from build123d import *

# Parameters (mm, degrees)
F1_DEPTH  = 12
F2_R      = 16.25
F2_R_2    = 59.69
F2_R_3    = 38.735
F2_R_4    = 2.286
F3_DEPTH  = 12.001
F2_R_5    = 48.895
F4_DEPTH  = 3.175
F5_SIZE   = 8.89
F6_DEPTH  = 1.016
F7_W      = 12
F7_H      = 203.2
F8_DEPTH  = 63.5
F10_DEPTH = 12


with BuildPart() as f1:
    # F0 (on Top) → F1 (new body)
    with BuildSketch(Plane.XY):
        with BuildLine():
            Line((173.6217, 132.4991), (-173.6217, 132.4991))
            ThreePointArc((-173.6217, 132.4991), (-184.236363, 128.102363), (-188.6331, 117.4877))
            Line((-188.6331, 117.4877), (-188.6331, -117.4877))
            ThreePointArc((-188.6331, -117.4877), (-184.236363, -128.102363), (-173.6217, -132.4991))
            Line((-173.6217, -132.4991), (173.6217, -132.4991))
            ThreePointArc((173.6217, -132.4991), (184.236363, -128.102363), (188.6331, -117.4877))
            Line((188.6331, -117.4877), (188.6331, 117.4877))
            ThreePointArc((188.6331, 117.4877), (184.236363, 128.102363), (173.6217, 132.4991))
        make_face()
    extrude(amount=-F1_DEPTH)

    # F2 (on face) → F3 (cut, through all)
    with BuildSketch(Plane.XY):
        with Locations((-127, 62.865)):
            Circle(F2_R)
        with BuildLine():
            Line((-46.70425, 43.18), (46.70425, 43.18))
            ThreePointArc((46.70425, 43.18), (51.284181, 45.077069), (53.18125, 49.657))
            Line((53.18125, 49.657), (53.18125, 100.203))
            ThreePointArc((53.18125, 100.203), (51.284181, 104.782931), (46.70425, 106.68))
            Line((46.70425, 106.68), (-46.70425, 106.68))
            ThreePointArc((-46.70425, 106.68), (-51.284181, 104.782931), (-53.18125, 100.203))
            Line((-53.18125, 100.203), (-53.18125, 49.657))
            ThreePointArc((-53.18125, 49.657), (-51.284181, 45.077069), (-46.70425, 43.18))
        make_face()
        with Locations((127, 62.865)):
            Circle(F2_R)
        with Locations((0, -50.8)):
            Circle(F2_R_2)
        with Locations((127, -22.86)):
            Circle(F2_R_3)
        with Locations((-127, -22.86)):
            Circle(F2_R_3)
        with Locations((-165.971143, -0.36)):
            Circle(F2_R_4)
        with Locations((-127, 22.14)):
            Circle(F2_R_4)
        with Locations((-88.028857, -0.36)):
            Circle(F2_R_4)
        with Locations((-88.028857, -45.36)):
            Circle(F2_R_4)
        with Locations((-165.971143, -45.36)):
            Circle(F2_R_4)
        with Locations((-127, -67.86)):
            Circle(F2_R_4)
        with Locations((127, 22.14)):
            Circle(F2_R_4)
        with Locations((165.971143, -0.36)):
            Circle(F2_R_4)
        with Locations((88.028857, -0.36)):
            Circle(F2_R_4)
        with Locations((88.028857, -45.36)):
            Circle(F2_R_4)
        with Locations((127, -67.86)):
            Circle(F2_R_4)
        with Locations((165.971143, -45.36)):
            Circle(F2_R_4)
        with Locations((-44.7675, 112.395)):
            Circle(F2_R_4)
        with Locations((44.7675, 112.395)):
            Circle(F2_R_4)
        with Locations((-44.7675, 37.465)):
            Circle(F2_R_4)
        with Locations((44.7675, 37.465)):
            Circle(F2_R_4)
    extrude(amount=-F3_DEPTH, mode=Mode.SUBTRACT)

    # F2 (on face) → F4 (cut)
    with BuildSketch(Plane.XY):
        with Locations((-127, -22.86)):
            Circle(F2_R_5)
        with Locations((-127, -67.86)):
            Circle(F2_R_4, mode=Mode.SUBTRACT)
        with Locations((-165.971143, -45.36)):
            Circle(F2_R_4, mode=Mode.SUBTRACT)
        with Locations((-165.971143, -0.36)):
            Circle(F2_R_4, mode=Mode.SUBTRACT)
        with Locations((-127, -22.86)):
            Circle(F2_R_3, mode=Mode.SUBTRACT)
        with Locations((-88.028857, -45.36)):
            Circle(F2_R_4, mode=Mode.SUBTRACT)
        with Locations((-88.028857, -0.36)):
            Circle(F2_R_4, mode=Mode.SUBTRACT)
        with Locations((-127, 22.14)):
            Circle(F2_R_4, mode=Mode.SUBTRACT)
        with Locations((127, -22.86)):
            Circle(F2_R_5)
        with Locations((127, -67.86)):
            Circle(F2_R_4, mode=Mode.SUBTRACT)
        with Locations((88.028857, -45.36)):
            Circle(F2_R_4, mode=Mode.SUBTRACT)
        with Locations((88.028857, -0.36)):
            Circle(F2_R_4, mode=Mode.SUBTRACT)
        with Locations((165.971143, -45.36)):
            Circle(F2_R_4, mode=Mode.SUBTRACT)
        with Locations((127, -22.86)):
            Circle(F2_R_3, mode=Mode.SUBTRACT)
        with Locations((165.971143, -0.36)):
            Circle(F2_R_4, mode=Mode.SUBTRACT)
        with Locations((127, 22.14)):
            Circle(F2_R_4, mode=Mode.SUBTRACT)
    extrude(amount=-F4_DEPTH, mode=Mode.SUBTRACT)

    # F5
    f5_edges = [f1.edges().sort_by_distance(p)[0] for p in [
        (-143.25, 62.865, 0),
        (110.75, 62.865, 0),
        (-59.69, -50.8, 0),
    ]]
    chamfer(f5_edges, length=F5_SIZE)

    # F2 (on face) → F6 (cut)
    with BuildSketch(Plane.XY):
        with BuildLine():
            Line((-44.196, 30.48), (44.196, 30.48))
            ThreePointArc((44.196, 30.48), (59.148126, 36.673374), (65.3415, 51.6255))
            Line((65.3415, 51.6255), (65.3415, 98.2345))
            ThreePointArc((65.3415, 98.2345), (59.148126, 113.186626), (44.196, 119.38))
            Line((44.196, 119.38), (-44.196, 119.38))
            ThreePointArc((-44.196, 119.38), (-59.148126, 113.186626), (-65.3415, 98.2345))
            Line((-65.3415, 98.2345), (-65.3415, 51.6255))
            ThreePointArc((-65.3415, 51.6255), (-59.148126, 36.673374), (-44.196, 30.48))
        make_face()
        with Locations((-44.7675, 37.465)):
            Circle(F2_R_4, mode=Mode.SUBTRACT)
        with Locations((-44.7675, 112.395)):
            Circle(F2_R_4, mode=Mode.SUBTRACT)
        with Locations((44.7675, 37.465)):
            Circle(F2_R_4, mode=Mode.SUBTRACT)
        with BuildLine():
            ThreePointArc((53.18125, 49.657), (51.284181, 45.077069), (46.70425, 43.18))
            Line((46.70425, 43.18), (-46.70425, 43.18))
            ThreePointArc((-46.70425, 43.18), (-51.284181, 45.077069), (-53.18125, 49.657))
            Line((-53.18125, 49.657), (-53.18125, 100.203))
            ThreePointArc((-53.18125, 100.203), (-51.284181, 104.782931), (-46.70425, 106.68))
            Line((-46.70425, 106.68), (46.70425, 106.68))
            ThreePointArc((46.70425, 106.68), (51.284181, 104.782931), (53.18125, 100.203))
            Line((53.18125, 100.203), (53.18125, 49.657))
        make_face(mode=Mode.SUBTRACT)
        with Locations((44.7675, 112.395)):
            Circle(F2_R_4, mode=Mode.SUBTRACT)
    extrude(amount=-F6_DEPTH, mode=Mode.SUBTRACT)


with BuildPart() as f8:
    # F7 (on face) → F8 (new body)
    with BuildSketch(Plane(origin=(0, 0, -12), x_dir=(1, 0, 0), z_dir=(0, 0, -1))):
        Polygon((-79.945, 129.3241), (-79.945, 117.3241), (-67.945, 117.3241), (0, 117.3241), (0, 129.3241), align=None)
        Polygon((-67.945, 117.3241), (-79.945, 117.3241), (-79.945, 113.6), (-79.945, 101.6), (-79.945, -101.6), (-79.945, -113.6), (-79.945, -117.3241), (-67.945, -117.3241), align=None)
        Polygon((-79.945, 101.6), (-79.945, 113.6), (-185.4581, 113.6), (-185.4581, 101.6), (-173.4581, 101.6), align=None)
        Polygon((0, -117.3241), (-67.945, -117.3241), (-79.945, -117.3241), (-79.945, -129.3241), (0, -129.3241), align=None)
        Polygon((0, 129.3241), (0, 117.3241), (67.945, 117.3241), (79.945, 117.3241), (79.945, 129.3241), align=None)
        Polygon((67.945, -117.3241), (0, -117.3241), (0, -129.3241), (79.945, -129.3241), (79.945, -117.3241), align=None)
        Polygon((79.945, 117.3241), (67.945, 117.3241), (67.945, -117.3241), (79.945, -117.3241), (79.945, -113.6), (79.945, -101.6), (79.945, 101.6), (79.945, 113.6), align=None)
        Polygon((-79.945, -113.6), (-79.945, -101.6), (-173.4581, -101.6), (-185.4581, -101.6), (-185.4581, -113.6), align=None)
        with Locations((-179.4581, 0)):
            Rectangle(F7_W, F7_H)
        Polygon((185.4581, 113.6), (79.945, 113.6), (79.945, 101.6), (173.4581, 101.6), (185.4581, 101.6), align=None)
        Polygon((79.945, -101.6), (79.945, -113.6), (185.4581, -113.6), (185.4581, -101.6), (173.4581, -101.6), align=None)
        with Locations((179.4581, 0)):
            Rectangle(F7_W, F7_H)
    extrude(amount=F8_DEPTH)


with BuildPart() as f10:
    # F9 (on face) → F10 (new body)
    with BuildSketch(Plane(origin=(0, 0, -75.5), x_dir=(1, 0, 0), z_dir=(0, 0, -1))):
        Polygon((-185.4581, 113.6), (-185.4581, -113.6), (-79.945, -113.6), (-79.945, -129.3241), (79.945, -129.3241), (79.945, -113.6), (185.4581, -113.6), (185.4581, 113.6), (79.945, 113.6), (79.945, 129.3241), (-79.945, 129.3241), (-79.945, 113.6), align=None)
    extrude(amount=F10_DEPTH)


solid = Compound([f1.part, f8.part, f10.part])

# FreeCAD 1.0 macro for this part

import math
import FreeCAD as App
import Part
import Sketcher
Q = App.Units.Quantity


def edges_at(feature, points):
    """Names of the edges that pass closest to the given points."""
    edges = feature.Shape.Edges
    near = lambda p: min(range(len(edges)), key=lambda i: edges[i].distToShape(Part.Vertex(*p))[0])
    return sorted({f"Edge{near(p) + 1}" for p in points})


def add_polygon(sketch, points):
    """Adds a closed chain of lines whose ends are joined by coincident constraints."""
    first, n = sketch.GeometryCount, len(points)
    for a, b in zip(points, points[1:] + points[:1]):
        sketch.addGeometry(Part.LineSegment(App.Vector(*a, 0), App.Vector(*b, 0)), False)
    for i in range(n):
        sketch.addConstraint(Sketcher.Constraint("Coincident", first + i, 2, first + (i + 1) % n, 1))

doc = App.newDocument("Part")
body = doc.addObject("PartDesign::Body", "Body")

# Sketch on XY plane
sketch1 = body.newObject("Sketcher::SketchObject", "Sketch")
sketch1.AttachmentSupport = (doc.getObject("XY_Plane"), [""])
sketch1.MapMode = "FlatFace"
sketch1.addGeometry(Part.LineSegment(App.Vector(174, 132, 0), App.Vector(-174, 132, 0)), False)
sketch1.addGeometry(Part.ArcOfCircle(Part.Circle(App.Vector(-174, 117, 0), App.Vector(0, 0, 1), 15), math.radians(90), math.radians(180)), False)
sketch1.addGeometry(Part.LineSegment(App.Vector(-189, 117, 0), App.Vector(-189, -117, 0)), False)
sketch1.addGeometry(Part.ArcOfCircle(Part.Circle(App.Vector(-174, -117, 0), App.Vector(0, 0, 1), 15), math.radians(180), math.radians(270)), False)
sketch1.addGeometry(Part.LineSegment(App.Vector(-174, -132, 0), App.Vector(174, -132, 0)), False)
sketch1.addGeometry(Part.ArcOfCircle(Part.Circle(App.Vector(174, -117, 0), App.Vector(0, 0, 1), 15), math.radians(-90), math.radians(0)), False)
sketch1.addGeometry(Part.LineSegment(App.Vector(189, -117, 0), App.Vector(189, 117, 0)), False)
sketch1.addGeometry(Part.ArcOfCircle(Part.Circle(App.Vector(174, 117, 0), App.Vector(0, 0, 1), 15), math.radians(0), math.radians(90)), False)
sketch1.addConstraint(Sketcher.Constraint("Tangent", 0, 2, 1, 1))
sketch1.addConstraint(Sketcher.Constraint("Tangent", 1, 2, 2, 1))
sketch1.addConstraint(Sketcher.Constraint("Tangent", 2, 2, 3, 1))
sketch1.addConstraint(Sketcher.Constraint("Tangent", 3, 2, 4, 1))
sketch1.addConstraint(Sketcher.Constraint("Tangent", 4, 2, 5, 1))
sketch1.addConstraint(Sketcher.Constraint("Tangent", 5, 2, 6, 1))
sketch1.addConstraint(Sketcher.Constraint("Tangent", 6, 2, 7, 1))
sketch1.addConstraint(Sketcher.Constraint("Tangent", 7, 2, 0, 1))
sketch1.addConstraint(Sketcher.Constraint("Horizontal", 0))
sketch1.addConstraint(Sketcher.Constraint("Vertical", 2))
sketch1.addConstraint(Sketcher.Constraint("Horizontal", 4))
sketch1.addConstraint(Sketcher.Constraint("Vertical", 6))
sketch1.addConstraint(Sketcher.Constraint("Equal", 1, 3))
sketch1.addConstraint(Sketcher.Constraint("Equal", 3, 5))
sketch1.addConstraint(Sketcher.Constraint("Equal", 5, 7))
sketch1.addConstraint(Sketcher.Constraint("Symmetric", 1, 3, 5, 3, -1, 1))
sketch1.addConstraint(Sketcher.Constraint("Radius", 1, Q("0.591 in")))
sketch1.addConstraint(Sketcher.Constraint("DistanceX", 0, 2, 0, 1, Q("13.671 in")))
sketch1.addConstraint(Sketcher.Constraint("DistanceY", 2, 2, 2, 1, Q("9.251 in")))
pad1 = body.newObject("PartDesign::Pad", "Pad")
pad1.Profile = sketch1
pad1.Length = 12
pad1.Reversed = True

# Sketch on XY plane
sketch2 = body.newObject("Sketcher::SketchObject", "Sketch001")
sketch2.AttachmentSupport = (doc.getObject("XY_Plane"), [""])
sketch2.MapMode = "FlatFace"
sketch2.addGeometry(Part.Circle(App.Vector(-127, 62.9, 0), App.Vector(0, 0, 1), 16.2), False)
sketch2.addGeometry(Part.LineSegment(App.Vector(-46.7, 43.2, 0), App.Vector(46.7, 43.2, 0)), False)
sketch2.addGeometry(Part.ArcOfCircle(Part.Circle(App.Vector(46.7, 49.7, 0), App.Vector(0, 0, 1), 6.5), math.radians(-90), math.radians(0)), False)
sketch2.addGeometry(Part.LineSegment(App.Vector(53.2, 49.7, 0), App.Vector(53.2, 100.2, 0)), False)
sketch2.addGeometry(Part.ArcOfCircle(Part.Circle(App.Vector(46.7, 100.2, 0), App.Vector(0, 0, 1), 6.5), math.radians(0), math.radians(90)), False)
sketch2.addGeometry(Part.LineSegment(App.Vector(46.7, 106.7, 0), App.Vector(-46.7, 106.7, 0)), False)
sketch2.addGeometry(Part.ArcOfCircle(Part.Circle(App.Vector(-46.7, 100.2, 0), App.Vector(0, 0, 1), 6.5), math.radians(90), math.radians(180)), False)
sketch2.addGeometry(Part.LineSegment(App.Vector(-53.2, 100.2, 0), App.Vector(-53.2, 49.7, 0)), False)
sketch2.addGeometry(Part.ArcOfCircle(Part.Circle(App.Vector(-46.7, 49.7, 0), App.Vector(0, 0, 1), 6.5), math.radians(180), math.radians(270)), False)
sketch2.addGeometry(Part.Circle(App.Vector(127, 62.9, 0), App.Vector(0, 0, 1), 16.2), False)
sketch2.addGeometry(Part.Circle(App.Vector(0, -50.8, 0), App.Vector(0, 0, 1), 59.7), False)
sketch2.addGeometry(Part.Circle(App.Vector(127, -22.9, 0), App.Vector(0, 0, 1), 38.7), False)
sketch2.addGeometry(Part.Circle(App.Vector(-127, -22.9, 0), App.Vector(0, 0, 1), 38.7), False)
sketch2.addGeometry(Part.Circle(App.Vector(-166, -0.4, 0), App.Vector(0, 0, 1), 2.3), False)
sketch2.addGeometry(Part.Circle(App.Vector(-127, 22.1, 0), App.Vector(0, 0, 1), 2.3), False)
sketch2.addGeometry(Part.Circle(App.Vector(-88, -0.4, 0), App.Vector(0, 0, 1), 2.3), False)
sketch2.addGeometry(Part.Circle(App.Vector(-88, -45.4, 0), App.Vector(0, 0, 1), 2.3), False)
sketch2.addGeometry(Part.Circle(App.Vector(-166, -45.4, 0), App.Vector(0, 0, 1), 2.3), False)
sketch2.addGeometry(Part.Circle(App.Vector(-127, -67.9, 0), App.Vector(0, 0, 1), 2.3), False)
sketch2.addGeometry(Part.Circle(App.Vector(127, 22.1, 0), App.Vector(0, 0, 1), 2.3), False)
sketch2.addGeometry(Part.Circle(App.Vector(166, -0.4, 0), App.Vector(0, 0, 1), 2.3), False)
sketch2.addGeometry(Part.Circle(App.Vector(88, -0.4, 0), App.Vector(0, 0, 1), 2.3), False)
sketch2.addGeometry(Part.Circle(App.Vector(88, -45.4, 0), App.Vector(0, 0, 1), 2.3), False)
sketch2.addGeometry(Part.Circle(App.Vector(127, -67.9, 0), App.Vector(0, 0, 1), 2.3), False)
sketch2.addGeometry(Part.Circle(App.Vector(166, -45.4, 0), App.Vector(0, 0, 1), 2.3), False)
sketch2.addGeometry(Part.Circle(App.Vector(-44.8, 112.4, 0), App.Vector(0, 0, 1), 2.3), False)
sketch2.addGeometry(Part.Circle(App.Vector(44.8, 112.4, 0), App.Vector(0, 0, 1), 2.3), False)
sketch2.addGeometry(Part.Circle(App.Vector(-44.8, 37.5, 0), App.Vector(0, 0, 1), 2.3), False)
sketch2.addGeometry(Part.Circle(App.Vector(44.8, 37.5, 0), App.Vector(0, 0, 1), 2.3), False)
sketch2.addConstraint(Sketcher.Constraint("Tangent", 1, 2, 2, 1))
sketch2.addConstraint(Sketcher.Constraint("Tangent", 2, 2, 3, 1))
sketch2.addConstraint(Sketcher.Constraint("Tangent", 3, 2, 4, 1))
sketch2.addConstraint(Sketcher.Constraint("Tangent", 4, 2, 5, 1))
sketch2.addConstraint(Sketcher.Constraint("Tangent", 5, 2, 6, 1))
sketch2.addConstraint(Sketcher.Constraint("Tangent", 6, 2, 7, 1))
sketch2.addConstraint(Sketcher.Constraint("Tangent", 7, 2, 8, 1))
sketch2.addConstraint(Sketcher.Constraint("Tangent", 8, 2, 1, 1))
sketch2.addConstraint(Sketcher.Constraint("Horizontal", 1))
sketch2.addConstraint(Sketcher.Constraint("Vertical", 3))
sketch2.addConstraint(Sketcher.Constraint("Horizontal", 5))
sketch2.addConstraint(Sketcher.Constraint("Vertical", 7))
sketch2.addConstraint(Sketcher.Constraint("Equal", 2, 4))
sketch2.addConstraint(Sketcher.Constraint("Equal", 4, 6))
sketch2.addConstraint(Sketcher.Constraint("Equal", 6, 8))
sketch2.addConstraint(Sketcher.Constraint("Equal", 0, 9))
sketch2.addConstraint(Sketcher.Constraint("Equal", 11, 12))
sketch2.addConstraint(Sketcher.Constraint("Equal", 13, 14))
sketch2.addConstraint(Sketcher.Constraint("Equal", 14, 15))
sketch2.addConstraint(Sketcher.Constraint("Equal", 15, 16))
sketch2.addConstraint(Sketcher.Constraint("Equal", 16, 17))
sketch2.addConstraint(Sketcher.Constraint("Equal", 17, 18))
sketch2.addConstraint(Sketcher.Constraint("Equal", 18, 19))
sketch2.addConstraint(Sketcher.Constraint("Equal", 19, 20))
sketch2.addConstraint(Sketcher.Constraint("Equal", 20, 21))
sketch2.addConstraint(Sketcher.Constraint("Equal", 21, 22))
sketch2.addConstraint(Sketcher.Constraint("Equal", 22, 23))
sketch2.addConstraint(Sketcher.Constraint("Equal", 23, 24))
sketch2.addConstraint(Sketcher.Constraint("Equal", 24, 25))
sketch2.addConstraint(Sketcher.Constraint("Equal", 25, 26))
sketch2.addConstraint(Sketcher.Constraint("Equal", 26, 27))
sketch2.addConstraint(Sketcher.Constraint("Equal", 27, 28))
sketch2.addConstraint(Sketcher.Constraint("Symmetric", 0, 3, 9, 3, -2))
sketch2.addConstraint(Sketcher.Constraint("Symmetric", 11, 3, 12, 3, -2))
sketch2.addConstraint(Sketcher.Constraint("Symmetric", 14, 3, 19, 3, -2))
sketch2.addConstraint(Sketcher.Constraint("Symmetric", 13, 3, 20, 3, -2))
sketch2.addConstraint(Sketcher.Constraint("Symmetric", 15, 3, 21, 3, -2))
sketch2.addConstraint(Sketcher.Constraint("Symmetric", 16, 3, 22, 3, -2))
sketch2.addConstraint(Sketcher.Constraint("Symmetric", 18, 3, 23, 3, -2))
sketch2.addConstraint(Sketcher.Constraint("Symmetric", 17, 3, 24, 3, -2))
sketch2.addConstraint(Sketcher.Constraint("Symmetric", 25, 3, 26, 3, -2))
sketch2.addConstraint(Sketcher.Constraint("Symmetric", 27, 3, 28, 3, -2))
sketch2.addConstraint(Sketcher.Constraint("PointOnObject", 10, 3, -2))
sketch2.addConstraint(Sketcher.Constraint("Horizontal", 13, 3, 15, 3))
sketch2.addConstraint(Sketcher.Constraint("Horizontal", 16, 3, 17, 3))
sketch2.addConstraint(Sketcher.Constraint("Vertical", 9, 3, 11, 3))
sketch2.addConstraint(Sketcher.Constraint("Vertical", 12, 3, 14, 3))
sketch2.addConstraint(Sketcher.Constraint("Vertical", 15, 3, 16, 3))
sketch2.addConstraint(Sketcher.Constraint("Vertical", 13, 3, 17, 3))
sketch2.addConstraint(Sketcher.Constraint("Vertical", 14, 3, 18, 3))
sketch2.addConstraint(Sketcher.Constraint("Vertical", 25, 3, 27, 3))
sketch2.addConstraint(Sketcher.Constraint("Diameter", 10, Q("4.7 in")))
sketch2.addConstraint(Sketcher.Constraint("Diameter", 11, Q("3.05 in")))
sketch2.addConstraint(Sketcher.Constraint("Diameter", 13, Q("0.18 in")))
sketch2.addConstraint(Sketcher.Constraint("DistanceX", 0, 3, -1, 1, Q("5 in")))
sketch2.addConstraint(Sketcher.Constraint("DistanceY", 10, 3, -1, 1, Q("2 in")))
sketch2.addConstraint(Sketcher.Constraint("Radius", 2, Q("0.2549999 in")))
sketch2.addConstraint(Sketcher.Constraint("DistanceY", 3, 1, 3, 2, Q("1.99 in")))
sketch2.addConstraint(Sketcher.Constraint("DistanceY", 11, 3, -1, 1, Q("0.9 in")))
sketch2.addConstraint(Sketcher.Constraint("DistanceY", -1, 1, 1, 2, Q("1.7 in")))
sketch2.addConstraint(Sketcher.Constraint("Diameter", 0, Q("32.5 mm")))
sketch2.addConstraint(Sketcher.Constraint("DistanceY", 2, 3, 0, 3, Q("0.5200001 in")))
sketch2.addConstraint(Sketcher.Constraint("DistanceY", 6, 3, 25, 3, Q("0.4799999 in")))
sketch2.addConstraint(Sketcher.Constraint("DistanceY", 27, 3, 8, 3, Q("0.4799999 in")))
sketch2.addConstraint(Sketcher.Constraint("DistanceX", 1, 1, 1, 2, Q("3.6775 in")))
sketch2.addConstraint(Sketcher.Constraint("DistanceX", -1, 1, 2, 2, Q("2.09375 in")))
sketch2.addConstraint(Sketcher.Constraint("DistanceX", 25, 3, 26, 3, Q("3.525 in")))
sketch2.addConstraint(Sketcher.Constraint("DistanceY", 13, 3, -1, 1, Q("0.36 mm")))
sketch2.addConstraint(Sketcher.Constraint("DistanceY", -1, 1, 14, 3, Q("22.14 mm")))
sketch2.addConstraint(Sketcher.Constraint("DistanceY", 16, 3, -1, 1, Q("45.36 mm")))
sketch2.addConstraint(Sketcher.Constraint("DistanceY", 18, 3, -1, 1, Q("67.86 mm")))
sketch2.addConstraint(Sketcher.Constraint("DistanceX", 13, 3, 8, 3, Q("119.266892 mm")))
sketch2.addConstraint(Sketcher.Constraint("DistanceX", 15, 3, -1, 1, Q("88.028857 mm")))
pocket1 = body.newObject("PartDesign::Pocket", "Pocket")
pocket1.Profile = sketch2
pocket1.Type = "ThroughAll"

# Sketch on XY plane
sketch3 = body.newObject("Sketcher::SketchObject", "Sketch002")
sketch3.AttachmentSupport = (doc.getObject("XY_Plane"), [""])
sketch3.MapMode = "FlatFace"
sketch3.addGeometry(Part.Circle(App.Vector(-127, -22.9, 0), App.Vector(0, 0, 1), 48.9), False)
sketch3.addGeometry(Part.Circle(App.Vector(-166, -45.4, 0), App.Vector(0, 0, 1), 2.3), False)
sketch3.addGeometry(Part.Circle(App.Vector(-127, -67.9, 0), App.Vector(0, 0, 1), 2.3), False)
sketch3.addGeometry(Part.Circle(App.Vector(-88, -45.4, 0), App.Vector(0, 0, 1), 2.3), False)
sketch3.addGeometry(Part.Circle(App.Vector(-166, -0.4, 0), App.Vector(0, 0, 1), 2.3), False)
sketch3.addGeometry(Part.Circle(App.Vector(-127, -22.9, 0), App.Vector(0, 0, 1), 38.7), False)
sketch3.addGeometry(Part.Circle(App.Vector(-88, -0.4, 0), App.Vector(0, 0, 1), 2.3), False)
sketch3.addGeometry(Part.Circle(App.Vector(-127, 22.1, 0), App.Vector(0, 0, 1), 2.3), False)
sketch3.addGeometry(Part.Circle(App.Vector(127, -22.9, 0), App.Vector(0, 0, 1), 48.9), False)
sketch3.addGeometry(Part.Circle(App.Vector(127, -67.9, 0), App.Vector(0, 0, 1), 2.3), False)
sketch3.addGeometry(Part.Circle(App.Vector(88, -45.4, 0), App.Vector(0, 0, 1), 2.3), False)
sketch3.addGeometry(Part.Circle(App.Vector(166, -45.4, 0), App.Vector(0, 0, 1), 2.3), False)
sketch3.addGeometry(Part.Circle(App.Vector(88, -0.4, 0), App.Vector(0, 0, 1), 2.3), False)
sketch3.addGeometry(Part.Circle(App.Vector(127, -22.9, 0), App.Vector(0, 0, 1), 38.7), False)
sketch3.addGeometry(Part.Circle(App.Vector(127, 22.1, 0), App.Vector(0, 0, 1), 2.3), False)
sketch3.addGeometry(Part.Circle(App.Vector(166, -0.4, 0), App.Vector(0, 0, 1), 2.3), False)
sketch3.addConstraint(Sketcher.Constraint("Coincident", 5, 3, 0, 3))
sketch3.addConstraint(Sketcher.Constraint("Coincident", 13, 3, 8, 3))
sketch3.addConstraint(Sketcher.Constraint("Equal", 1, 2))
sketch3.addConstraint(Sketcher.Constraint("Equal", 2, 3))
sketch3.addConstraint(Sketcher.Constraint("Equal", 3, 4))
sketch3.addConstraint(Sketcher.Constraint("Equal", 4, 6))
sketch3.addConstraint(Sketcher.Constraint("Equal", 6, 7))
sketch3.addConstraint(Sketcher.Constraint("Equal", 0, 8))
sketch3.addConstraint(Sketcher.Constraint("Equal", 7, 9))
sketch3.addConstraint(Sketcher.Constraint("Equal", 9, 10))
sketch3.addConstraint(Sketcher.Constraint("Equal", 10, 11))
sketch3.addConstraint(Sketcher.Constraint("Equal", 11, 12))
sketch3.addConstraint(Sketcher.Constraint("Equal", 5, 13))
sketch3.addConstraint(Sketcher.Constraint("Equal", 12, 14))
sketch3.addConstraint(Sketcher.Constraint("Equal", 14, 15))
sketch3.addConstraint(Sketcher.Constraint("Symmetric", 0, 3, 8, 3, -2))
sketch3.addConstraint(Sketcher.Constraint("Symmetric", 2, 3, 9, 3, -2))
sketch3.addConstraint(Sketcher.Constraint("Symmetric", 3, 3, 10, 3, -2))
sketch3.addConstraint(Sketcher.Constraint("Symmetric", 1, 3, 11, 3, -2))
sketch3.addConstraint(Sketcher.Constraint("Symmetric", 6, 3, 12, 3, -2))
sketch3.addConstraint(Sketcher.Constraint("Symmetric", 7, 3, 14, 3, -2))
sketch3.addConstraint(Sketcher.Constraint("Symmetric", 4, 3, 15, 3, -2))
sketch3.addConstraint(Sketcher.Constraint("Horizontal", 1, 3, 3, 3))
sketch3.addConstraint(Sketcher.Constraint("Horizontal", 4, 3, 6, 3))
sketch3.addConstraint(Sketcher.Constraint("Vertical", 0, 3, 2, 3))
sketch3.addConstraint(Sketcher.Constraint("Vertical", 1, 3, 4, 3))
sketch3.addConstraint(Sketcher.Constraint("Vertical", 3, 3, 6, 3))
sketch3.addConstraint(Sketcher.Constraint("Vertical", 5, 3, 7, 3))
sketch3.addConstraint(Sketcher.Constraint("Diameter", 0, Q("3.85 in")))
sketch3.addConstraint(Sketcher.Constraint("Diameter", 1, Q("0.18 in")))
sketch3.addConstraint(Sketcher.Constraint("Diameter", 5, Q("3.05 in")))
sketch3.addConstraint(Sketcher.Constraint("DistanceX", 0, 3, -1, 1, Q("5 in")))
sketch3.addConstraint(Sketcher.Constraint("DistanceX", 3, 3, 11, 3, Q("10 in")))
sketch3.addConstraint(Sketcher.Constraint("DistanceY", 0, 3, -1, 1, Q("0.9 in")))
sketch3.addConstraint(Sketcher.Constraint("DistanceY", 1, 3, -1, 1, Q("45.36 mm")))
sketch3.addConstraint(Sketcher.Constraint("DistanceY", 2, 3, -1, 1, Q("67.86 mm")))
sketch3.addConstraint(Sketcher.Constraint("DistanceY", 4, 3, -1, 1, Q("0.36 mm")))
sketch3.addConstraint(Sketcher.Constraint("DistanceY", -1, 1, 7, 3, Q("22.14 mm")))
sketch3.addConstraint(Sketcher.Constraint("DistanceX", 1, 3, -1, 1, Q("165.971143 mm")))
pocket2 = body.newObject("PartDesign::Pocket", "Pocket001")
pocket2.Profile = sketch3
pocket2.Length = Q("0.125 in")
doc.recompute()

chamfer = body.newObject("PartDesign::Chamfer", "Chamfer")
chamfer.Base = (pocket2, edges_at(pocket2, [(-143.25, 62.865, 0), (110.75, 62.865, 0), (-59.69, -50.8, 0)]))
chamfer.Size = Q("0.35 in")

# Sketch on XY plane
sketch4 = body.newObject("Sketcher::SketchObject", "Sketch003")
sketch4.AttachmentSupport = (doc.getObject("XY_Plane"), [""])
sketch4.MapMode = "FlatFace"
sketch4.addGeometry(Part.LineSegment(App.Vector(-44.2, 30.5, 0), App.Vector(44.2, 30.5, 0)), False)
sketch4.addGeometry(Part.ArcOfCircle(Part.Circle(App.Vector(44.2, 51.6, 0), App.Vector(0, 0, 1), 21.1), math.radians(-90), math.radians(0)), False)
sketch4.addGeometry(Part.LineSegment(App.Vector(65.3, 51.6, 0), App.Vector(65.3, 98.2, 0)), False)
sketch4.addGeometry(Part.ArcOfCircle(Part.Circle(App.Vector(44.2, 98.2, 0), App.Vector(0, 0, 1), 21.1), math.radians(0), math.radians(90)), False)
sketch4.addGeometry(Part.LineSegment(App.Vector(44.2, 119.4, 0), App.Vector(-44.2, 119.4, 0)), False)
sketch4.addGeometry(Part.ArcOfCircle(Part.Circle(App.Vector(-44.2, 98.2, 0), App.Vector(0, 0, 1), 21.1), math.radians(90), math.radians(180)), False)
sketch4.addGeometry(Part.LineSegment(App.Vector(-65.3, 98.2, 0), App.Vector(-65.3, 51.6, 0)), False)
sketch4.addGeometry(Part.ArcOfCircle(Part.Circle(App.Vector(-44.2, 51.6, 0), App.Vector(0, 0, 1), 21.1), math.radians(-180), math.radians(-90)), False)
sketch4.addGeometry(Part.Circle(App.Vector(-44.8, 37.5, 0), App.Vector(0, 0, 1), 2.3), False)
sketch4.addGeometry(Part.Circle(App.Vector(44.8, 37.5, 0), App.Vector(0, 0, 1), 2.3), False)
sketch4.addGeometry(Part.Circle(App.Vector(-44.8, 112.4, 0), App.Vector(0, 0, 1), 2.3), False)
sketch4.addGeometry(Part.LineSegment(App.Vector(53.2, 100.2, 0), App.Vector(53.2, 49.7, 0)), False)
sketch4.addGeometry(Part.ArcOfCircle(Part.Circle(App.Vector(46.7, 49.7, 0), App.Vector(0, 0, 1), 6.5), math.radians(-90), math.radians(0)), False)
sketch4.addGeometry(Part.LineSegment(App.Vector(46.7, 43.2, 0), App.Vector(-46.7, 43.2, 0)), False)
sketch4.addGeometry(Part.ArcOfCircle(Part.Circle(App.Vector(-46.7, 49.7, 0), App.Vector(0, 0, 1), 6.5), math.radians(180), math.radians(270)), False)
sketch4.addGeometry(Part.LineSegment(App.Vector(-53.2, 49.7, 0), App.Vector(-53.2, 100.2, 0)), False)
sketch4.addGeometry(Part.ArcOfCircle(Part.Circle(App.Vector(-46.7, 100.2, 0), App.Vector(0, 0, 1), 6.5), math.radians(90), math.radians(180)), False)
sketch4.addGeometry(Part.LineSegment(App.Vector(-46.7, 106.7, 0), App.Vector(46.7, 106.7, 0)), False)
sketch4.addGeometry(Part.ArcOfCircle(Part.Circle(App.Vector(46.7, 100.2, 0), App.Vector(0, 0, 1), 6.5), math.radians(0), math.radians(90)), False)
sketch4.addGeometry(Part.Circle(App.Vector(44.8, 112.4, 0), App.Vector(0, 0, 1), 2.3), False)
sketch4.addConstraint(Sketcher.Constraint("Tangent", 0, 2, 1, 1))
sketch4.addConstraint(Sketcher.Constraint("Tangent", 1, 2, 2, 1))
sketch4.addConstraint(Sketcher.Constraint("Tangent", 2, 2, 3, 1))
sketch4.addConstraint(Sketcher.Constraint("Tangent", 3, 2, 4, 1))
sketch4.addConstraint(Sketcher.Constraint("Tangent", 4, 2, 5, 1))
sketch4.addConstraint(Sketcher.Constraint("Tangent", 5, 2, 6, 1))
sketch4.addConstraint(Sketcher.Constraint("Tangent", 6, 2, 7, 1))
sketch4.addConstraint(Sketcher.Constraint("Tangent", 7, 2, 0, 1))
sketch4.addConstraint(Sketcher.Constraint("Tangent", 11, 2, 12, 2))
sketch4.addConstraint(Sketcher.Constraint("Tangent", 12, 1, 13, 1))
sketch4.addConstraint(Sketcher.Constraint("Tangent", 13, 2, 14, 2))
sketch4.addConstraint(Sketcher.Constraint("Tangent", 14, 1, 15, 1))
sketch4.addConstraint(Sketcher.Constraint("Tangent", 15, 2, 16, 2))
sketch4.addConstraint(Sketcher.Constraint("Tangent", 16, 1, 17, 1))
sketch4.addConstraint(Sketcher.Constraint("Tangent", 17, 2, 18, 2))
sketch4.addConstraint(Sketcher.Constraint("Tangent", 18, 1, 11, 1))
sketch4.addConstraint(Sketcher.Constraint("Horizontal", 0))
sketch4.addConstraint(Sketcher.Constraint("Vertical", 2))
sketch4.addConstraint(Sketcher.Constraint("Horizontal", 4))
sketch4.addConstraint(Sketcher.Constraint("Vertical", 6))
sketch4.addConstraint(Sketcher.Constraint("Vertical", 11))
sketch4.addConstraint(Sketcher.Constraint("Horizontal", 13))
sketch4.addConstraint(Sketcher.Constraint("Vertical", 15))
sketch4.addConstraint(Sketcher.Constraint("Horizontal", 17))
sketch4.addConstraint(Sketcher.Constraint("Equal", 1, 3))
sketch4.addConstraint(Sketcher.Constraint("Equal", 3, 5))
sketch4.addConstraint(Sketcher.Constraint("Equal", 5, 7))
sketch4.addConstraint(Sketcher.Constraint("Equal", 8, 9))
sketch4.addConstraint(Sketcher.Constraint("Equal", 9, 10))
sketch4.addConstraint(Sketcher.Constraint("Equal", 12, 14))
sketch4.addConstraint(Sketcher.Constraint("Equal", 14, 16))
sketch4.addConstraint(Sketcher.Constraint("Equal", 16, 18))
sketch4.addConstraint(Sketcher.Constraint("Equal", 10, 19))
sketch4.addConstraint(Sketcher.Constraint("Symmetric", 8, 3, 9, 3, -2))
sketch4.addConstraint(Sketcher.Constraint("Symmetric", 10, 3, 19, 3, -2))
sketch4.addConstraint(Sketcher.Constraint("Vertical", 8, 3, 10, 3))
sketch4.addConstraint(Sketcher.Constraint("Diameter", 8, Q("0.18 in")))
sketch4.addConstraint(Sketcher.Constraint("Radius", 12, Q("0.2549999 in")))
sketch4.addConstraint(Sketcher.Constraint("DistanceX", 0, 1, 0, 2, Q("3.48 in")))
sketch4.addConstraint(Sketcher.Constraint("DistanceY", 11, 2, 11, 1, Q("1.99 in")))
sketch4.addConstraint(Sketcher.Constraint("DistanceY", -1, 1, 0, 2, Q("1.2 in")))
sketch4.addConstraint(Sketcher.Constraint("DistanceY", -1, 1, 3, 2, Q("4.7 in")))
sketch4.addConstraint(Sketcher.Constraint("DistanceY", -1, 1, 12, 1, Q("1.7 in")))
sketch4.addConstraint(Sketcher.Constraint("Radius", 1, Q("0.8325001 in")))
sketch4.addConstraint(Sketcher.Constraint("DistanceX", -1, 1, 1, 3, Q("1.7399999 in")))
sketch4.addConstraint(Sketcher.Constraint("DistanceY", 8, 3, 10, 3, Q("2.95 in")))
sketch4.addConstraint(Sketcher.Constraint("DistanceY", 9, 3, 12, 3, Q("0.4799999 in")))
sketch4.addConstraint(Sketcher.Constraint("DistanceX", 9, 3, 1, 2, Q("0.81 in")))
sketch4.addConstraint(Sketcher.Constraint("DistanceX", 13, 2, 13, 1, Q("3.6775 in")))
sketch4.addConstraint(Sketcher.Constraint("DistanceX", -1, 1, 11, 2, Q("2.09375 in")))
pocket3 = body.newObject("PartDesign::Pocket", "Pocket002")
pocket3.Profile = sketch4
pocket3.Length = Q("0.04 in")
body2 = doc.addObject("PartDesign::Body", "Body001")

# Sketch on XY plane
sketch5 = body2.newObject("Sketcher::SketchObject", "Sketch004")
sketch5.AttachmentSupport = (doc.getObject("XY_Plane001"), [""])
sketch5.MapMode = "FlatFace"
sketch5.AttachmentOffset = App.Placement(App.Vector(0, 0, -12), App.Rotation())
add_polygon(sketch5, [(-80, -129), (-80, -114), (-185, -114), (-185, 114), (-80, 114), (-80, 129), (80, 129), (80, 114), (185, 114), (185, -114), (80, -114), (80, -129)])  # lines 0-11
add_polygon(sketch5, [(173, 102), (80, 102), (80, -102), (173, -102)])  # lines 12-15
add_polygon(sketch5, [(-173, -102), (-80, -102), (-80, 102), (-173, 102)])  # lines 16-19
add_polygon(sketch5, [(68, 117), (-68, 117), (-68, -117), (68, -117)])  # lines 20-23
sketch5.addConstraint(Sketcher.Constraint("Vertical", 0))
sketch5.addConstraint(Sketcher.Constraint("Horizontal", 1))
sketch5.addConstraint(Sketcher.Constraint("Vertical", 2))
sketch5.addConstraint(Sketcher.Constraint("Horizontal", 3))
sketch5.addConstraint(Sketcher.Constraint("Vertical", 4))
sketch5.addConstraint(Sketcher.Constraint("Horizontal", 5))
sketch5.addConstraint(Sketcher.Constraint("Vertical", 6))
sketch5.addConstraint(Sketcher.Constraint("Horizontal", 7))
sketch5.addConstraint(Sketcher.Constraint("Vertical", 8))
sketch5.addConstraint(Sketcher.Constraint("Horizontal", 9))
sketch5.addConstraint(Sketcher.Constraint("Vertical", 10))
sketch5.addConstraint(Sketcher.Constraint("Horizontal", 11))
sketch5.addConstraint(Sketcher.Constraint("Horizontal", 12))
sketch5.addConstraint(Sketcher.Constraint("Vertical", 13))
sketch5.addConstraint(Sketcher.Constraint("Horizontal", 14))
sketch5.addConstraint(Sketcher.Constraint("Vertical", 15))
sketch5.addConstraint(Sketcher.Constraint("Horizontal", 16))
sketch5.addConstraint(Sketcher.Constraint("Vertical", 17))
sketch5.addConstraint(Sketcher.Constraint("Horizontal", 18))
sketch5.addConstraint(Sketcher.Constraint("Vertical", 19))
sketch5.addConstraint(Sketcher.Constraint("Horizontal", 20))
sketch5.addConstraint(Sketcher.Constraint("Vertical", 21))
sketch5.addConstraint(Sketcher.Constraint("Horizontal", 22))
sketch5.addConstraint(Sketcher.Constraint("Vertical", 23))
sketch5.addConstraint(Sketcher.Constraint("Symmetric", 0, 2, 6, 2, -1, 1))
sketch5.addConstraint(Sketcher.Constraint("Symmetric", 2, 2, 8, 2, -1, 1))
sketch5.addConstraint(Sketcher.Constraint("Symmetric", 4, 2, 10, 2, -1, 1))
sketch5.addConstraint(Sketcher.Constraint("Symmetric", 12, 2, 16, 2, -1, 1))
sketch5.addConstraint(Sketcher.Constraint("Symmetric", 14, 2, 18, 2, -1, 1))
sketch5.addConstraint(Sketcher.Constraint("Symmetric", 20, 2, 22, 2, -1, 1))
sketch5.addConstraint(Sketcher.Constraint("Symmetric", 3, 2, 6, 2, -2))
sketch5.addConstraint(Sketcher.Constraint("Horizontal", 14, 2, 16, 2))
sketch5.addConstraint(Sketcher.Constraint("Vertical", 10, 2, 12, 2))
sketch5.addConstraint(Sketcher.Constraint("DistanceY", 13, 2, 13, 1, Q("8 in")))
sketch5.addConstraint(Sketcher.Constraint("DistanceX", 20, 2, 20, 1, Q("5.35 in")))
sketch5.addConstraint(Sketcher.Constraint("DistanceY", 10, 2, 5, 2, Q("10.183 in")))
sketch5.addConstraint(Sketcher.Constraint("DistanceX", 1, 2, 1, 1, Q("105.5131 mm")))
sketch5.addConstraint(Sketcher.Constraint("DistanceX", 5, 1, 5, 2, Q("159.89 mm")))
sketch5.addConstraint(Sketcher.Constraint("DistanceX", 12, 2, 12, 1, Q("93.5131 mm")))
sketch5.addConstraint(Sketcher.Constraint("DistanceY", 0, 1, 0, 2, Q("15.7241 mm")))
sketch5.addConstraint(Sketcher.Constraint("DistanceY", 21, 2, 21, 1, Q("234.6482 mm")))
pad2 = body2.newObject("PartDesign::Pad", "Pad001")
pad2.Profile = sketch5
pad2.Length = Q("2.5 in")
pad2.Reversed = True
body3 = doc.addObject("PartDesign::Body", "Body002")

# Sketch on XY plane
sketch6 = body3.newObject("Sketcher::SketchObject", "Sketch005")
sketch6.AttachmentSupport = (doc.getObject("XY_Plane002"), [""])
sketch6.MapMode = "FlatFace"
sketch6.AttachmentOffset = App.Placement(App.Vector(0, 0, -75.5), App.Rotation())
add_polygon(sketch6, [(-185, -114), (-185, 114), (-80, 114), (-80, 129), (80, 129), (80, 114), (185, 114), (185, -114), (80, -114), (80, -129), (-80, -129), (-80, -114)])  # lines 0-11
sketch6.addConstraint(Sketcher.Constraint("Vertical", 0))
sketch6.addConstraint(Sketcher.Constraint("Horizontal", 1))
sketch6.addConstraint(Sketcher.Constraint("Vertical", 2))
sketch6.addConstraint(Sketcher.Constraint("Horizontal", 3))
sketch6.addConstraint(Sketcher.Constraint("Vertical", 4))
sketch6.addConstraint(Sketcher.Constraint("Horizontal", 5))
sketch6.addConstraint(Sketcher.Constraint("Vertical", 6))
sketch6.addConstraint(Sketcher.Constraint("Horizontal", 7))
sketch6.addConstraint(Sketcher.Constraint("Vertical", 8))
sketch6.addConstraint(Sketcher.Constraint("Horizontal", 9))
sketch6.addConstraint(Sketcher.Constraint("Vertical", 10))
sketch6.addConstraint(Sketcher.Constraint("Horizontal", 11))
sketch6.addConstraint(Sketcher.Constraint("Symmetric", 0, 2, 6, 2, -1, 1))
sketch6.addConstraint(Sketcher.Constraint("Symmetric", 2, 2, 8, 2, -1, 1))
sketch6.addConstraint(Sketcher.Constraint("Symmetric", 4, 2, 10, 2, -1, 1))
sketch6.addConstraint(Sketcher.Constraint("Symmetric", 1, 2, 4, 2, -2))
sketch6.addConstraint(Sketcher.Constraint("DistanceX", 0, 2, 5, 2, Q("14.603 in")))
sketch6.addConstraint(Sketcher.Constraint("DistanceY", 8, 2, 3, 2, Q("10.183 in")))
sketch6.addConstraint(Sketcher.Constraint("DistanceX", 1, 1, 1, 2, Q("105.5131 mm")))
sketch6.addConstraint(Sketcher.Constraint("DistanceY", 0, 1, 0, 2, Q("227.2 mm")))
pad3 = body3.newObject("PartDesign::Pad", "Pad002")
pad3.Profile = sketch6
pad3.Length = 12
pad3.Reversed = True

doc.recompute()
